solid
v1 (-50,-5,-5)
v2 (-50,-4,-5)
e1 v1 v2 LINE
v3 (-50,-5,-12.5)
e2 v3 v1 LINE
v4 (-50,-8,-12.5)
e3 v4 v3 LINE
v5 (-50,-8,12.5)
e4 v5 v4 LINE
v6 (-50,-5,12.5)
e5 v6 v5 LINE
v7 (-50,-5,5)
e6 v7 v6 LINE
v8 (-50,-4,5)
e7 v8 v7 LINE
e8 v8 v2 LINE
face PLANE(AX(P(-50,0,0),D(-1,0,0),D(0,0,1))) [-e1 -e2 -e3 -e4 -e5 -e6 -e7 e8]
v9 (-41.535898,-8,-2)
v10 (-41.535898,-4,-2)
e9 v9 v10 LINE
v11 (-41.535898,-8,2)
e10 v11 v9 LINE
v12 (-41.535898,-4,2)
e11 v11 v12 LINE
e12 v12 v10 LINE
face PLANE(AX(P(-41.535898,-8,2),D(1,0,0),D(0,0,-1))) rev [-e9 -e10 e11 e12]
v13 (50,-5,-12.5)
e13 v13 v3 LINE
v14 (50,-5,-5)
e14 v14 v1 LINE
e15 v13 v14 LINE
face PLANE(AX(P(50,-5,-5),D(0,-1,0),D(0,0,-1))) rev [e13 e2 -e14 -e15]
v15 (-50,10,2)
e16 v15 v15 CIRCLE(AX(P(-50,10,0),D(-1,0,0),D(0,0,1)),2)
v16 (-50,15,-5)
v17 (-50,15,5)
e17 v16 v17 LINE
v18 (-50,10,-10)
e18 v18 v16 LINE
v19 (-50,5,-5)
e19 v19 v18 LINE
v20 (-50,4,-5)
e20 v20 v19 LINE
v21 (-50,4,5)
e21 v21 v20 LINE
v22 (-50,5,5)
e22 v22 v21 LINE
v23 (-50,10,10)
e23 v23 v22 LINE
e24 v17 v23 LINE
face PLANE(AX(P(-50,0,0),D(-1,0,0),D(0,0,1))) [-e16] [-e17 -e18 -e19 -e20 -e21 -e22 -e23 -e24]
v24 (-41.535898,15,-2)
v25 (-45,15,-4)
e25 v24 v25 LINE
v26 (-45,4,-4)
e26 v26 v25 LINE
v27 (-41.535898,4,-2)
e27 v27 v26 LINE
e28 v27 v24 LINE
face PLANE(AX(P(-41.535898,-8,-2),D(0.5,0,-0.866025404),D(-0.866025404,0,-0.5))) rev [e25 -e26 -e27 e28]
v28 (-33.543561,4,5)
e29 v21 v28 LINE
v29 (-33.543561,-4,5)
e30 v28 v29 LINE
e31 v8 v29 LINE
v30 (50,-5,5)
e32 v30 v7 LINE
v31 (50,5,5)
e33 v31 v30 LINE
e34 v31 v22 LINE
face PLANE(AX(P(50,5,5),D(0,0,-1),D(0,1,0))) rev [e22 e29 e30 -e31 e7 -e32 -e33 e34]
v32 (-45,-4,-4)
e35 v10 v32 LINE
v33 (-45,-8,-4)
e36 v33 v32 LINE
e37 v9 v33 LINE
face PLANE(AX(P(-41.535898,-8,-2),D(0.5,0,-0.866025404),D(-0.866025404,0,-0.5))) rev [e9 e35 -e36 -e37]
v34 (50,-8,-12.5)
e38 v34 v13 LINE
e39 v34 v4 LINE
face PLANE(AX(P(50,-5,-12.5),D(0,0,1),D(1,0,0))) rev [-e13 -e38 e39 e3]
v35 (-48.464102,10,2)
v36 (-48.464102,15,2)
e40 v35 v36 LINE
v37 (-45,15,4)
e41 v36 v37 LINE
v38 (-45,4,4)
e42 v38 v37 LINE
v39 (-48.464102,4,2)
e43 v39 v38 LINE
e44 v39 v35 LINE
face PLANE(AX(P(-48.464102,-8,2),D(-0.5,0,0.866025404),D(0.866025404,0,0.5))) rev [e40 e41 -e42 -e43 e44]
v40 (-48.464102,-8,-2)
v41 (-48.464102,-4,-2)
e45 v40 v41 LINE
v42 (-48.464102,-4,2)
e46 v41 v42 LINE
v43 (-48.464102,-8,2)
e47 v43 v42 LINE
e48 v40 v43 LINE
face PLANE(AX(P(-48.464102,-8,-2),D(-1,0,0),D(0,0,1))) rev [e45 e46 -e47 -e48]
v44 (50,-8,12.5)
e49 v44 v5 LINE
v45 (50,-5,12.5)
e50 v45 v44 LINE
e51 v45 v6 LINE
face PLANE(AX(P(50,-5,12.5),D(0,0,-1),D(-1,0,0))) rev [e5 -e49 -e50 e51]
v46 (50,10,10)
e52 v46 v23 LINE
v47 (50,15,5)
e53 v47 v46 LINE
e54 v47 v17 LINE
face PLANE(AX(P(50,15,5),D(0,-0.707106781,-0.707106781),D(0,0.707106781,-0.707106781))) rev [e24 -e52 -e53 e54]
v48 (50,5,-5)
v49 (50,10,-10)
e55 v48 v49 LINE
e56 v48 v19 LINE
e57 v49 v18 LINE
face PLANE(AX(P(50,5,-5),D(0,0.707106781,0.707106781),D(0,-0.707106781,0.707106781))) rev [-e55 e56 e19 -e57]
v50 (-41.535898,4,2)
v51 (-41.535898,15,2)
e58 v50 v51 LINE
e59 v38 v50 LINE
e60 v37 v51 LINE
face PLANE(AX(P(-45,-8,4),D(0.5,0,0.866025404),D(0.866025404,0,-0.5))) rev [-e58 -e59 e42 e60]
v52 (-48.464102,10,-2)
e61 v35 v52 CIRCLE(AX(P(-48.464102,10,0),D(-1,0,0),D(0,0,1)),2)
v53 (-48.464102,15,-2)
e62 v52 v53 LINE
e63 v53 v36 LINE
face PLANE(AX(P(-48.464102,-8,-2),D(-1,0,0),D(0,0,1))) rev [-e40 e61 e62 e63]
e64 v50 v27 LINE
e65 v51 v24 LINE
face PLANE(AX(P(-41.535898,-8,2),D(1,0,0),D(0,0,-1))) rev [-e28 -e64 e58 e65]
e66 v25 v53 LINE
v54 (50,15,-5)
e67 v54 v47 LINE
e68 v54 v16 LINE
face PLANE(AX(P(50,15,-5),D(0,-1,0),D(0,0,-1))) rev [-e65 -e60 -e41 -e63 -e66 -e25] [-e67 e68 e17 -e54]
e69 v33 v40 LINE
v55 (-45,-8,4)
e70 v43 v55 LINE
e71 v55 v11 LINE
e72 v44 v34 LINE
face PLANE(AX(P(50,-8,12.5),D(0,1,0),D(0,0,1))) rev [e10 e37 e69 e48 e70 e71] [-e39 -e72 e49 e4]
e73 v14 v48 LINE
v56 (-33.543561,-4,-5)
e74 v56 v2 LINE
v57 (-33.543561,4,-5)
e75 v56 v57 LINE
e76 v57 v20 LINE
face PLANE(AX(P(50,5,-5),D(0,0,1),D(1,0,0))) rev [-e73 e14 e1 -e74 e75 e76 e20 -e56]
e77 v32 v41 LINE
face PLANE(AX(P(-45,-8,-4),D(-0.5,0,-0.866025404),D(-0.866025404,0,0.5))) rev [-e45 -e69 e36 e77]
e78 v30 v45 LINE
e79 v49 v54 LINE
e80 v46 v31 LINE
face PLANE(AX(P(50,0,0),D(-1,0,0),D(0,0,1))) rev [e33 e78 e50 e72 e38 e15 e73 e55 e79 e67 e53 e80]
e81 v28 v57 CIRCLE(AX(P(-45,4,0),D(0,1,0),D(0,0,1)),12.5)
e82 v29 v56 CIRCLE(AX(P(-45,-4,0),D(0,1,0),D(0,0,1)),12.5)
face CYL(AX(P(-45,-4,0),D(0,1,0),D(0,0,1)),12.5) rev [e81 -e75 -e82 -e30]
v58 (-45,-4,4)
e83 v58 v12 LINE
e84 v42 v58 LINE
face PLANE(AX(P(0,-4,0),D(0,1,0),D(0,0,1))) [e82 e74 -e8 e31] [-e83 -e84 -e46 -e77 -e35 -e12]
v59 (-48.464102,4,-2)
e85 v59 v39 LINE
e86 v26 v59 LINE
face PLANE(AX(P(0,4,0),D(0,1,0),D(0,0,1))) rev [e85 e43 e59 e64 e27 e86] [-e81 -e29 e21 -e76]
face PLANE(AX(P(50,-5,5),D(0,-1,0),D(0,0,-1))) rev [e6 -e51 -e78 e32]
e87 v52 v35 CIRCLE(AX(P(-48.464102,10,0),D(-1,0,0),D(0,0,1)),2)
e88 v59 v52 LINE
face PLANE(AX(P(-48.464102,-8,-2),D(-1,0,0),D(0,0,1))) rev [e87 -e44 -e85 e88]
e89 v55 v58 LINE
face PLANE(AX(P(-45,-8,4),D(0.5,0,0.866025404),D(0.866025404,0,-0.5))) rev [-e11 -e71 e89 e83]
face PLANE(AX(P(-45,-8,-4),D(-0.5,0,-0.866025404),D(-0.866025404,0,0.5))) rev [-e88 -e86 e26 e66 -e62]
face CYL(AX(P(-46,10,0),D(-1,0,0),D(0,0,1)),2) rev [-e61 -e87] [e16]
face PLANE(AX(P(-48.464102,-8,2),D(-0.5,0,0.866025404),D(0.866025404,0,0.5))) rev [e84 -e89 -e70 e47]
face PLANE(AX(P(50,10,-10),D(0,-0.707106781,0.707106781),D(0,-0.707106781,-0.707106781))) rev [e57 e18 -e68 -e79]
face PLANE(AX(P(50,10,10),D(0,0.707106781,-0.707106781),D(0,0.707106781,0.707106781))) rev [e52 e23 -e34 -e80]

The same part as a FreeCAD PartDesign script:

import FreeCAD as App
import Part
import Sketcher
Q = App.Units.Quantity


def add_polygon(sketch, points):
    """Adds a closed chain of lines whose ends are joined by coincident constraints."""
    first, n = sketch.GeometryCount, len(points)
    for a, b in zip(points, points[1:] + points[:1]):
        sketch.addGeometry(Part.LineSegment(App.Vector(*a, 0), App.Vector(*b, 0)), False)
    for i in range(n):
        sketch.addConstraint(Sketcher.Constraint("Coincident", first + i, 2, first + (i + 1) % n, 1))

doc = App.newDocument("Part")
body = doc.addObject("PartDesign::Body", "Body")

# Sketch on YZ plane
sketch1 = doc.addObject("Sketcher::SketchObject", "Sketch")
body.addObject(sketch1)
sketch1.AttachmentSupport = (doc.YZ_Plane, [""])
sketch1.MapMode = "FlatFace"
add_polygon(sketch1, [(5, -5), (10, -10), (15, -5), (15, 5), (10, 10), (5, 5), (-5, 5), (-5, 12.5), (-8, 12.5), (-8, -12.5), (-5, -12.5), (-5, -5)])  # lines 0-11
sketch1.addConstraint(Sketcher.Constraint("Vertical", 2))
sketch1.addConstraint(Sketcher.Constraint("Horizontal", 5))
sketch1.addConstraint(Sketcher.Constraint("Vertical", 6))
sketch1.addConstraint(Sketcher.Constraint("Horizontal", 7))
sketch1.addConstraint(Sketcher.Constraint("Vertical", 8))
sketch1.addConstraint(Sketcher.Constraint("Horizontal", 9))
sketch1.addConstraint(Sketcher.Constraint("Vertical", 10))
sketch1.addConstraint(Sketcher.Constraint("Horizontal", 11))
sketch1.addConstraint(Sketcher.Constraint("Symmetric", 4, 2, 10, 2, -1, 1))
sketch1.addConstraint(Sketcher.Constraint("Symmetric", 0, 2, 3, 2, -1))
sketch1.addConstraint(Sketcher.Constraint("Symmetric", 6, 2, 9, 2, -1))
sketch1.addConstraint(Sketcher.Constraint("Perpendicular", 0, 1))
sketch1.addConstraint(Sketcher.Constraint("Perpendicular", 1, 3))
sketch1.addConstraint(Sketcher.Constraint("Perpendicular", 3, 4))
sketch1.addConstraint(Sketcher.Constraint("Horizontal", 2, 2, 4, 2))
sketch1.addConstraint(Sketcher.Constraint("Horizontal", 1, 2, 10, 2))
sketch1.addConstraint(Sketcher.Constraint("Equal", 11, 2))
sketch1.addConstraint(Sketcher.Constraint("DistanceX", 5, 2, 5, 1, Q("10 mm")))
sketch1.addConstraint(Sketcher.Constraint("DistanceX", 7, 2, 7, 1, Q("3 mm")))
sketch1.addConstraint(Sketcher.Constraint("DistanceY", 8, 2, 8, 1, Q("25 mm")))
sketch1.addConstraint(Sketcher.Constraint("DistanceX", -1, 1, 0, 2, Q("10 mm")))
pad1 = doc.addObject("PartDesign::Pad", "Pad")
body.addObject(pad1)
pad1.Profile = sketch1
pad1.Length = 100
pad1.Midplane = True

# Sketch on XZ plane
sketch2 = doc.addObject("Sketcher::SketchObject", "Sketch001")
body.addObject(sketch2)
sketch2.AttachmentSupport = (doc.XZ_Plane, [""])
sketch2.MapMode = "FlatFace"
sketch2.addGeometry(Part.Circle(App.Vector(-45, 0, 0), App.Vector(0, 0, 1), 12), False)
sketch2.addConstraint(Sketcher.Constraint("PointOnObject", 0, 3, -1))
sketch2.addConstraint(Sketcher.Constraint("Diameter", 0, Q("25 mm")))
sketch2.addConstraint(Sketcher.Constraint("DistanceX", 0, 3, -1, 1, Q("45 mm")))
pocket1 = doc.addObject("PartDesign::Pocket", "Pocket")
body.addObject(pocket1)
pocket1.Profile = sketch2
pocket1.Length = 8
pocket1.Midplane = True

# Sketch on XZ plane
sketch3 = doc.addObject("Sketcher::SketchObject", "Sketch002")
body.addObject(sketch3)
sketch3.AttachmentSupport = (doc.XZ_Plane, [""])
sketch3.MapMode = "FlatFace"
add_polygon(sketch3, [(-45, 4), (-41.5, 2), (-41.5, -2), (-45, -4), (-48.5, -2), (-48.5, 2)])  # lines 0-5
sketch3.addConstraint(Sketcher.Constraint("Vertical", 1))
sketch3.addConstraint(Sketcher.Constraint("Vertical", 4))
sketch3.addConstraint(Sketcher.Constraint("Symmetric", 2, 2, 5, 2, -1))
sketch3.addConstraint(Sketcher.Constraint("Parallel", 0, 3))
sketch3.addConstraint(Sketcher.Constraint("Parallel", 2, 5))
sketch3.addConstraint(Sketcher.Constraint("Horizontal", 1, 2, 3, 2))
sketch3.addConstraint(Sketcher.Constraint("Horizontal", 0, 2, 4, 2))
sketch3.addConstraint(Sketcher.Constraint("DistanceY", 1, 2, 1, 1, Q("4 mm")))
sketch3.addConstraint(Sketcher.Constraint("Angle", 0, Q("-30 deg")))
sketch3.addConstraint(Sketcher.Constraint("Distance", 0, Q("4 mm")))
sketch3.addConstraint(Sketcher.Constraint("DistanceX", 2, 2, -1, 1, Q("45 mm")))
pocket2 = doc.addObject("PartDesign::Pocket", "Pocket001")
body.addObject(pocket2)
pocket2.Profile = sketch3
pocket2.Type = "ThroughAll"
pocket2.Midplane = True

# Sketch on YZ plane
sketch4 = doc.addObject("Sketcher::SketchObject", "Sketch003")
body.addObject(sketch4)
sketch4.AttachmentSupport = (doc.YZ_Plane, [""])
sketch4.MapMode = "FlatFace"
sketch4.AttachmentOffset = App.Placement(App.Vector(0, 0, -50), App.Rotation())
sketch4.addGeometry(Part.Circle(App.Vector(10, 0, 0), App.Vector(0, 0, 1), 2), False)
sketch4.addConstraint(Sketcher.Constraint("PointOnObject", 0, 3, -1))
sketch4.addConstraint(Sketcher.Constraint("Diameter", 0, Q("4 mm")))
sketch4.addConstraint(Sketcher.Constraint("DistanceX", -1, 1, 0, 3, Q("10 mm")))
pocket3 = doc.addObject("PartDesign::Pocket", "Pocket002")
body.addObject(pocket3)
pocket3.Profile = sketch4
pocket3.Length = 4
pocket3.Reversed = True

doc.recompute()
